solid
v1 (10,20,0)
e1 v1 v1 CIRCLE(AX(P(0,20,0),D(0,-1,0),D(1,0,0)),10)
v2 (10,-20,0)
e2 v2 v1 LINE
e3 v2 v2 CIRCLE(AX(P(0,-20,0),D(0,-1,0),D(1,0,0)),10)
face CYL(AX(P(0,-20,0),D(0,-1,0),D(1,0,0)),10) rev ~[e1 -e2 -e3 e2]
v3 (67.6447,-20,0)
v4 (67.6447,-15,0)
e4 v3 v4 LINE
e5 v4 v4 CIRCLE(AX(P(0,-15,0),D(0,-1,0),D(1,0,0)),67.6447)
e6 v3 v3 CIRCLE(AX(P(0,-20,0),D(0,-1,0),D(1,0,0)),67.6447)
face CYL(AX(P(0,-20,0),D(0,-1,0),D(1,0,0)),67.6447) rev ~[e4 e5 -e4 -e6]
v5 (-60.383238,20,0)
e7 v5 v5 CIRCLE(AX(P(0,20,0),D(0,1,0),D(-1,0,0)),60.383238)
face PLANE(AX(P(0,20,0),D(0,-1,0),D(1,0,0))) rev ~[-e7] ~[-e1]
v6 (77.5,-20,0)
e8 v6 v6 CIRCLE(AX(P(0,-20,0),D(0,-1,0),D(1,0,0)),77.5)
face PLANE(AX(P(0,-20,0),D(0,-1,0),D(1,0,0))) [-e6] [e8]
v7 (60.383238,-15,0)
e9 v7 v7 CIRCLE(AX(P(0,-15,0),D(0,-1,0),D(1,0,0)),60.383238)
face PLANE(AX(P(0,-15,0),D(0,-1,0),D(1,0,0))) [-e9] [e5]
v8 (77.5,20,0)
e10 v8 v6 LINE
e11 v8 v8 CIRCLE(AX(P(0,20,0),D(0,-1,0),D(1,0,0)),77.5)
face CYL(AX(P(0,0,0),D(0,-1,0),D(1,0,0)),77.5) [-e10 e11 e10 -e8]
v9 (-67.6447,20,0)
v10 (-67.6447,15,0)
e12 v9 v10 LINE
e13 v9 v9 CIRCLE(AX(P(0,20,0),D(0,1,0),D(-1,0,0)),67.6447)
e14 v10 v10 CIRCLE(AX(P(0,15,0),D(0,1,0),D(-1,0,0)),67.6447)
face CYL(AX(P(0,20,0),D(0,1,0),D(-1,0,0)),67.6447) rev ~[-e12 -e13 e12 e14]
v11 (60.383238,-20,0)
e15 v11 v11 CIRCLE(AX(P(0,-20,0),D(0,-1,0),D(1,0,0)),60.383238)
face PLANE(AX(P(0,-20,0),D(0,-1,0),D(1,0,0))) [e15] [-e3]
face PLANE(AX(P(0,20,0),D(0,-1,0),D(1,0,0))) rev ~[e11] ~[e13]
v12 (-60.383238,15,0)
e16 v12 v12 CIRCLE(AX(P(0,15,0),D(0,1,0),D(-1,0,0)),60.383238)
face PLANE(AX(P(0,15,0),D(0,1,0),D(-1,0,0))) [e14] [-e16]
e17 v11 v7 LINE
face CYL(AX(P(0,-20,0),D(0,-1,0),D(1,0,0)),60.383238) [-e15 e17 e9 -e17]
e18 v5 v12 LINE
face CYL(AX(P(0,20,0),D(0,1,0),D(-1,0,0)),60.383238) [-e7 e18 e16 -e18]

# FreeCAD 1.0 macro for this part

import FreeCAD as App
import Part
import Sketcher
Q = App.Units.Quantity

doc = App.newDocument("Part")
body = doc.addObject("PartDesign::Body", "Body")

sketch1 = body.newObject("Sketcher::SketchObject", "Sketch")
sketch1.AttachmentSupport = (doc.getObject("XZ_Plane"), [""])
sketch1.MapMode = "FlatFace"
sketch1.addGeometry(Part.Circle(App.Vector(0, 0, 0), App.Vector(0, 0, 1), 78), False)
sketch1.addConstraint(Sketcher.Constraint("Coincident", 0, 3, -1, 1))
sketch1.addConstraint(Sketcher.Constraint("Diameter", 0, Q("155 mm")))
pad1 = body.newObject("PartDesign::Pad", "Pad")
pad1.Profile = sketch1
pad1.Length = 40
pad1.Midplane = True

sketch2 = body.newObject("Sketcher::SketchObject", "Sketch001")
sketch2.AttachmentSupport = (doc.getObject("XZ_Plane"), [""])
sketch2.MapMode = "FlatFace"
sketch2.AttachmentOffset = App.Placement(App.Vector(0, 0, -20), App.Rotation())
sketch2.addGeometry(Part.Circle(App.Vector(0, 0, 0), App.Vector(0, 0, 1), 68), False)
sketch2.addGeometry(Part.Circle(App.Vector(0, 0, 0), App.Vector(0, 0, 1), 60), False)
sketch2.addConstraint(Sketcher.Constraint("Coincident", 0, 3, -1, 1))
sketch2.addConstraint(Sketcher.Constraint("Coincident", 1, 3, -1, 1))
sketch2.addConstraint(Sketcher.Constraint("Diameter", 0, Q("135.2894 mm")))
sketch2.addConstraint(Sketcher.Constraint("Diameter", 1, Q("120.766476 mm")))
pocket1 = body.newObject("PartDesign::Pocket", "Pocket")
pocket1.Profile = sketch2
pocket1.Length = 5
pocket1.Reversed = True

sketch3 = body.newObject("Sketcher::SketchObject", "Sketch002")
sketch3.AttachmentSupport = (doc.getObject("XZ_Plane"), [""])
sketch3.MapMode = "FlatFace"
sketch3.AttachmentOffset = App.Placement(App.Vector(0, 0, 20), App.Rotation())
sketch3.addGeometry(Part.Circle(App.Vector(0, 0, 0), App.Vector(0, 0, 1), 68), False)
sketch3.addGeometry(Part.Circle(App.Vector(0, 0, 0), App.Vector(0, 0, 1), 60), False)
sketch3.addConstraint(Sketcher.Constraint("Coincident", 0, 3, -1, 1))
sketch3.addConstraint(Sketcher.Constraint("Coincident", 1, 3, -1, 1))
sketch3.addConstraint(Sketcher.Constraint("Diameter", 0, Q("135.2894 mm")))
sketch3.addConstraint(Sketcher.Constraint("Diameter", 1, Q("120.766476 mm")))
pocket2 = body.newObject("PartDesign::Pocket", "Pocket001")
pocket2.Profile = sketch3
pocket2.Length = 5

sketch4 = body.newObject("Sketcher::SketchObject", "Sketch003")
sketch4.AttachmentSupport = (doc.getObject("XZ_Plane"), [""])
sketch4.MapMode = "FlatFace"
sketch4.AttachmentOffset = App.Placement(App.Vector(0, 0, 20), App.Rotation())
sketch4.addGeometry(Part.Circle(App.Vector(0, 0, 0), App.Vector(0, 0, 1), 10), False)
sketch4.addConstraint(Sketcher.Constraint("Coincident", 0, 3, -1, 1))
sketch4.addConstraint(Sketcher.Constraint("Diameter", 0, Q("20 mm")))
pocket3 = body.newObject("PartDesign::Pocket", "Pocket002")
pocket3.Profile = sketch4
pocket3.Type = "ThroughAll"

doc.recompute()
